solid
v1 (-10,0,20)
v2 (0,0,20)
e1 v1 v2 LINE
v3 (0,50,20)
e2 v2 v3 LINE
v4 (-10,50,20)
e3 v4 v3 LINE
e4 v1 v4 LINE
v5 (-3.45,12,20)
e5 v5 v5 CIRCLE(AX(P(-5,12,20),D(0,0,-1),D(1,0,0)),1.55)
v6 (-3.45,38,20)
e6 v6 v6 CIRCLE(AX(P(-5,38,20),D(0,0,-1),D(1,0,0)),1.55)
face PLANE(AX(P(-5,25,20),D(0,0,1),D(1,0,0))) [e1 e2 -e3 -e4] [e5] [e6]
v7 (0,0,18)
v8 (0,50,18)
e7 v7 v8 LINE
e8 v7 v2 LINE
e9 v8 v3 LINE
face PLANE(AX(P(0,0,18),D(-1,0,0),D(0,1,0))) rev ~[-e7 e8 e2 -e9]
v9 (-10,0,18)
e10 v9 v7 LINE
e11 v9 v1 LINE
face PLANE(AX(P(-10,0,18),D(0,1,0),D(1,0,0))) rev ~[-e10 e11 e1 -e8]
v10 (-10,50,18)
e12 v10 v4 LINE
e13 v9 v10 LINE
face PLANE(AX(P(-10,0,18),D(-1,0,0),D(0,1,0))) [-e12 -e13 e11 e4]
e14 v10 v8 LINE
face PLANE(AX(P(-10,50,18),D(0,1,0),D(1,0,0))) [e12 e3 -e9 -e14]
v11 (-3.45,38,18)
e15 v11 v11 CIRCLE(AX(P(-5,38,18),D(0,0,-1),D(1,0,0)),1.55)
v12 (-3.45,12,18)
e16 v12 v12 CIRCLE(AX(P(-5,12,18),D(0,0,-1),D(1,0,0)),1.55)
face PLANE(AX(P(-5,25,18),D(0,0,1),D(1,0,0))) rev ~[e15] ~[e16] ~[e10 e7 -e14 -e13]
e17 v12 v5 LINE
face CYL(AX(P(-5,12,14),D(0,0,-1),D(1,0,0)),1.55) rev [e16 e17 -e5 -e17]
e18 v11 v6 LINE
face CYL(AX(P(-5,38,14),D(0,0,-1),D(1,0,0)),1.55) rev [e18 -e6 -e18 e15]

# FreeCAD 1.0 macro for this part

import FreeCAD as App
import Part
import Sketcher
from FreeCAD import Vector

doc = App.newDocument("Part")
body = doc.addObject("PartDesign::Body", "Body")

sketch1 = body.newObject("Sketcher::SketchObject", "Sketch")
sketch1.AttachmentSupport = (doc.getObject("XY_Plane"), [""])
sketch1.MapMode = "FlatFace"
sketch1.AttachmentOffset = App.Placement(Vector(0, 0, 14), App.Rotation())
sketch1.addGeometry(Part.Circle(Vector(-5, 38, 0), Vector(0, 0, 1), 1.55), False)
sketch1.addConstraint(Sketcher.Constraint("Diameter", 0, 3.1))
sketch1.addConstraint(Sketcher.Constraint("DistanceX", 0, 3, -1, 1, 5.0))
sketch1.addConstraint(Sketcher.Constraint("DistanceY", -1, 1, 0, 3, 38.0))
pad1 = body.newObject("PartDesign::Pad", "Pad")
pad1.Profile = sketch1
pad1.Length = 10
body2 = doc.addObject("PartDesign::Body", "Body001")

sketch2 = body2.newObject("Sketcher::SketchObject", "Sketch001")
sketch2.AttachmentSupport = (doc.getObject("XY_Plane001"), [""])
sketch2.MapMode = "FlatFace"
sketch2.AttachmentOffset = App.Placement(Vector(0, 0, 14), App.Rotation())
sketch2.addGeometry(Part.Circle(Vector(-5, 12, 0), Vector(0, 0, 1), 1.55), False)
sketch2.addConstraint(Sketcher.Constraint("Diameter", 0, 3.1))
sketch2.addConstraint(Sketcher.Constraint("DistanceX", 0, 3, -1, 1, 5.0))
sketch2.addConstraint(Sketcher.Constraint("DistanceY", -1, 1, 0, 3, 12.0))
pad2 = body2.newObject("PartDesign::Pad", "Pad001")
pad2.Profile = sketch2
pad2.Length = 10
body3 = doc.addObject("PartDesign::Body", "Body002")

sketch3 = body3.newObject("Sketcher::SketchObject", "Sketch002")
sketch3.AttachmentSupport = (doc.getObject("XY_Plane002"), [""])
sketch3.MapMode = "FlatFace"
sketch3.AttachmentOffset = App.Placement(Vector(0, 0, 18), App.Rotation())
sketch3.addGeometry(Part.LineSegment(Vector(-10, 50, 0), Vector(-10, 0, 0)), False)
sketch3.addGeometry(Part.LineSegment(Vector(-10, 0, 0), Vector(0, 0, 0)), False)
sketch3.addGeometry(Part.LineSegment(Vector(0, 0, 0), Vector(0, 50, 0)), False)
sketch3.addGeometry(Part.LineSegment(Vector(0, 50, 0), Vector(-10, 50, 0)), False)
sketch3.addConstraint(Sketcher.Constraint("Coincident", 0, 2, 1, 1))
sketch3.addConstraint(Sketcher.Constraint("Coincident", 1, 2, 2, 1))
sketch3.addConstraint(Sketcher.Constraint("Coincident", 2, 2, 3, 1))
sketch3.addConstraint(Sketcher.Constraint("Coincident", 3, 2, 0, 1))
sketch3.addConstraint(Sketcher.Constraint("Vertical", 0))
sketch3.addConstraint(Sketcher.Constraint("Horizontal", 1))
sketch3.addConstraint(Sketcher.Constraint("Vertical", 2))
sketch3.addConstraint(Sketcher.Constraint("Horizontal", 3))
sketch3.addConstraint(Sketcher.Constraint("Coincident", 1, 2, -1, 1))
sketch3.addConstraint(Sketcher.Constraint("DistanceX", 1, 1, 1, 2, 10.0))
sketch3.addConstraint(Sketcher.Constraint("DistanceY", 0, 2, 0, 1, 50.0))
pad3 = body3.newObject("PartDesign::Pad", "Pad002")
pad3.Profile = sketch3
pad3.Length = 2
doc.recompute()

boolean = body3.newObject("PartDesign::Boolean", "Boolean")
boolean.Type = "Cut"
boolean.addObjects([body2])
doc.recompute()

boolean2 = body3.newObject("PartDesign::Boolean", "Boolean001")
boolean2.Type = "Cut"
boolean2.addObjects([body])

doc.recompute()
